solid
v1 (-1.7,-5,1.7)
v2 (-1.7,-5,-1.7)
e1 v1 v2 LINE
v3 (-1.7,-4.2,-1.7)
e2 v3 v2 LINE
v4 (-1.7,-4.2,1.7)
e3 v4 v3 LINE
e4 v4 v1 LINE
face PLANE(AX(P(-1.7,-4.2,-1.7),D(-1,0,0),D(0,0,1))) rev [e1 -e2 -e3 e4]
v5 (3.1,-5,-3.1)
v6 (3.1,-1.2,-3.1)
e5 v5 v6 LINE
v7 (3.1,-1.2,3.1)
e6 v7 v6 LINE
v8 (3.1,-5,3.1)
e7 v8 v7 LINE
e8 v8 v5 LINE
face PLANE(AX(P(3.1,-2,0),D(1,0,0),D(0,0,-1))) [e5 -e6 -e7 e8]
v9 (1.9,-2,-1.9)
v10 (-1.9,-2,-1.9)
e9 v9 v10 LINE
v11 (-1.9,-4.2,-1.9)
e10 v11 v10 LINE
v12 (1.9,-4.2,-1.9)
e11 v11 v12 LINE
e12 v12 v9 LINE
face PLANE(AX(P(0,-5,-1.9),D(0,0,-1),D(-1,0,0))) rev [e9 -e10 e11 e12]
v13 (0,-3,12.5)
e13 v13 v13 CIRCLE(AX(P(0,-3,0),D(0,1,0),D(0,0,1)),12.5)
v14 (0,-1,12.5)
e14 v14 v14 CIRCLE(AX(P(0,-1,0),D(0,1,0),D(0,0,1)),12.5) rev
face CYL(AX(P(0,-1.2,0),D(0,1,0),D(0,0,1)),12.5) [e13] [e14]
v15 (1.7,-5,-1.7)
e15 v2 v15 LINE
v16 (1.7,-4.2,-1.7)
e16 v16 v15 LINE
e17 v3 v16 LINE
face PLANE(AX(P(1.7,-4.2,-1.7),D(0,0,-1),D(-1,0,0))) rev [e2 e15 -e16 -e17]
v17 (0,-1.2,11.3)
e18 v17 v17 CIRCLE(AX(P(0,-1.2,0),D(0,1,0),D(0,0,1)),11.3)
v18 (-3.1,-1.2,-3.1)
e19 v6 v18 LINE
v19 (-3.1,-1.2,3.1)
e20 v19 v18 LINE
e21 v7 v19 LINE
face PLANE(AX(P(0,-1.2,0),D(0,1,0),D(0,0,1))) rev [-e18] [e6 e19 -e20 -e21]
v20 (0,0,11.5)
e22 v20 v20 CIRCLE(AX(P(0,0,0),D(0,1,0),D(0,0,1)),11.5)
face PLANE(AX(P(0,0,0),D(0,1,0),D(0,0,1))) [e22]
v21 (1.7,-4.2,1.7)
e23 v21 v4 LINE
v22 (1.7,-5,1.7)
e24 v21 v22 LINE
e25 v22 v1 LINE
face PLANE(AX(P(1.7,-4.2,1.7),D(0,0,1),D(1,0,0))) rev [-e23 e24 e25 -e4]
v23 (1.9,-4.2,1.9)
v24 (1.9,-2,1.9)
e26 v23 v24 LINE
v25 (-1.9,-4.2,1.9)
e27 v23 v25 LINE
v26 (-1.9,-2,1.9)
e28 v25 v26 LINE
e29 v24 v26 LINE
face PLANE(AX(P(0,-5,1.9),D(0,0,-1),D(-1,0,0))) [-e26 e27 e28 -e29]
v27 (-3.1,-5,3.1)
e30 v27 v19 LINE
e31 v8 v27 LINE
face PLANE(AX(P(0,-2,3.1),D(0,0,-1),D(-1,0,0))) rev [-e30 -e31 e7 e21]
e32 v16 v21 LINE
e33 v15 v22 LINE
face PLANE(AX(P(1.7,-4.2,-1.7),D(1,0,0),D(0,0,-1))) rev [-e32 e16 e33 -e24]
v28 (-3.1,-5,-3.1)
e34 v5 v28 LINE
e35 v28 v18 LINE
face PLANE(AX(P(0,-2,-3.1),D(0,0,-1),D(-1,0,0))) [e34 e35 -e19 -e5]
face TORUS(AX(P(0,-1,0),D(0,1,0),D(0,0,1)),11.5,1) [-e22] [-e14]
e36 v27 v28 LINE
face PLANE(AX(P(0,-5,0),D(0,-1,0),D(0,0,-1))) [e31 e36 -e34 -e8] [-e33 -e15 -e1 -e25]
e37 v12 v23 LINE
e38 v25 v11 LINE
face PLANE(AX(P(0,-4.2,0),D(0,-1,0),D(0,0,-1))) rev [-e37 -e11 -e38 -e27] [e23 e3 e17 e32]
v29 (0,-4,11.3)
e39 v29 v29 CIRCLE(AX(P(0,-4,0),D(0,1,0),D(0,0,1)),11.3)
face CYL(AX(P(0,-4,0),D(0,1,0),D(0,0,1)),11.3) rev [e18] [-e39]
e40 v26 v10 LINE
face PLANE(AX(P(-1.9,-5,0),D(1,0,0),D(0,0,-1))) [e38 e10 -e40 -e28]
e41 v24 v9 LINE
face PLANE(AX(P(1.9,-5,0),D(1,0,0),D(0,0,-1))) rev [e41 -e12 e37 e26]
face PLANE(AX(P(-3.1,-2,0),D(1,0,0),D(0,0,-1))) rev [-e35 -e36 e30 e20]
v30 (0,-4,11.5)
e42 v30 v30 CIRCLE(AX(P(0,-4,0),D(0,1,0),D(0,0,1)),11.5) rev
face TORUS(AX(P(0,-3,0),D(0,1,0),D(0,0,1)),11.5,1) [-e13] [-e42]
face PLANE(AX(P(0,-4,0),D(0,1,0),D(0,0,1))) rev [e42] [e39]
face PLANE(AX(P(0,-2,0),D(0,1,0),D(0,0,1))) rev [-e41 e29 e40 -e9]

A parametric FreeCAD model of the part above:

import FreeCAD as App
import Part
import Sketcher
from FreeCAD import Vector
Q = App.Units.Quantity


def edges_at(feature, points):
    """Names of the edges that pass closest to the given points."""
    edges = feature.Shape.Edges
    near = lambda p: min(range(len(edges)), key=lambda i: edges[i].distToShape(Part.Vertex(*p))[0])
    return sorted({f"Edge{near(p) + 1}" for p in points})

doc = App.newDocument("Part")
params = doc.addObject("Spreadsheet::Sheet", "Params")
for row, (alias, value) in enumerate([
    ("sketch1_diameter", "25 mm"),
    ("pad1_length", "1.2 mm"),
    ("sketch2_diameter", "25 mm"),
    ("sketch2_diameter2", "22.6 mm"),
    ("pad2_length", "4 mm"),
    ("sketch3_width", "6.2 mm"),
    ("pad3_length", "2 mm"),
    ("sketch4_width", "6.2 mm"),
    ("sketch4_width2", "3.8 mm"),
    ("pad4_length", "3 mm"),
    ("fillet_radius", "1 mm"),
    ("sketch5_width", "3.8 mm"),
    ("sketch5_width2", "3.4 mm"),
    ("pad5_length", "0.8 mm"),
], start=1):
    params.set(f"A{row}", alias)
    params.set(f"B{row}", "=" + value)
    params.setAlias(f"B{row}", alias)

body = doc.addObject("PartDesign::Body", "Body")

sketch1 = doc.addObject("Sketcher::SketchObject", "Sketch")
body.addObject(sketch1)
sketch1.AttachmentSupport = (doc.XZ_Plane, [""])
sketch1.MapMode = "FlatFace"
sketch1.addGeometry(Part.Circle(Vector(0, 0, 0), Vector(0, 0, 1), 12), False)
sketch1.addConstraint(Sketcher.Constraint("Coincident", 0, 3, -1, 1))
sketch1.addConstraint(Sketcher.Constraint("Diameter", 0, Q("25 mm")))
sketch1.setExpression("Constraints[1]", "Params.sketch1_diameter")
pad1 = doc.addObject("PartDesign::Pad", "Pad")
body.addObject(pad1)
pad1.Profile = sketch1
pad1.setExpression("Length", "Params.pad1_length")

sketch2 = doc.addObject("Sketcher::SketchObject", "Sketch001")
body.addObject(sketch2)
sketch2.AttachmentSupport = (doc.XZ_Plane, [""])
sketch2.MapMode = "FlatFace"
sketch2.addGeometry(Part.Circle(Vector(0, 0, 0), Vector(0, 0, 1), 12), False)
sketch2.addGeometry(Part.Circle(Vector(0, 0, 0), Vector(0, 0, 1), 11), False)
sketch2.addConstraint(Sketcher.Constraint("Coincident", 0, 3, -1, 1))
sketch2.addConstraint(Sketcher.Constraint("Coincident", 1, 3, -1, 1))
sketch2.addConstraint(Sketcher.Constraint("Diameter", 0, Q("25 mm")))
sketch2.addConstraint(Sketcher.Constraint("Diameter", 1, Q("22.6 mm")))
sketch2.setExpression("Constraints[2]", "Params.sketch2_diameter")
sketch2.setExpression("Constraints[3]", "Params.sketch2_diameter2")
pad2 = doc.addObject("PartDesign::Pad", "Pad001")
body.addObject(pad2)
pad2.Profile = sketch2
pad2.setExpression("Length", "Params.pad2_length")

sketch3 = doc.addObject("Sketcher::SketchObject", "Sketch002")
body.addObject(sketch3)
sketch3.AttachmentSupport = (doc.XZ_Plane, [""])
sketch3.MapMode = "FlatFace"
sketch3.addGeometry(Part.LineSegment(Vector(-3, -3, 0), Vector(-3, 3, 0)), False)
sketch3.addGeometry(Part.LineSegment(Vector(-3, 3, 0), Vector(3, 3, 0)), False)
sketch3.addGeometry(Part.LineSegment(Vector(3, 3, 0), Vector(3, -3, 0)), False)
sketch3.addGeometry(Part.LineSegment(Vector(3, -3, 0), Vector(-3, -3, 0)), False)
sketch3.addConstraint(Sketcher.Constraint("Coincident", 0, 2, 1, 1))
sketch3.addConstraint(Sketcher.Constraint("Coincident", 1, 2, 2, 1))
sketch3.addConstraint(Sketcher.Constraint("Coincident", 2, 2, 3, 1))
sketch3.addConstraint(Sketcher.Constraint("Coincident", 3, 2, 0, 1))
sketch3.addConstraint(Sketcher.Constraint("Vertical", 0))
sketch3.addConstraint(Sketcher.Constraint("Horizontal", 1))
sketch3.addConstraint(Sketcher.Constraint("Vertical", 2))
sketch3.addConstraint(Sketcher.Constraint("Horizontal", 3))
sketch3.addConstraint(Sketcher.Constraint("Symmetric", 0, 2, 2, 2, -1, 1))
sketch3.addConstraint(Sketcher.Constraint("Equal", 3, 0))
sketch3.addConstraint(Sketcher.Constraint("DistanceX", 1, 1, 1, 2, Q("6.2 mm")))
sketch3.setExpression("Constraints[10]", "Params.sketch3_width")
pad3 = doc.addObject("PartDesign::Pad", "Pad002")
body.addObject(pad3)
pad3.Profile = sketch3
pad3.setExpression("Length", "Params.pad3_length")

sketch4 = doc.addObject("Sketcher::SketchObject", "Sketch003")
body.addObject(sketch4)
sketch4.AttachmentSupport = (doc.XZ_Plane, [""])
sketch4.MapMode = "FlatFace"
sketch4.AttachmentOffset = App.Placement(Vector(0, 0, 2), App.Rotation())
sketch4.addGeometry(Part.LineSegment(Vector(-3.1, -3.1, 0), Vector(-3.1, 3.1, 0)), False)
sketch4.addGeometry(Part.LineSegment(Vector(-3.1, 3.1, 0), Vector(3.1, 3.1, 0)), False)
sketch4.addGeometry(Part.LineSegment(Vector(3.1, 3.1, 0), Vector(3.1, -3.1, 0)), False)
sketch4.addGeometry(Part.LineSegment(Vector(3.1, -3.1, 0), Vector(-3.1, -3.1, 0)), False)
sketch4.addGeometry(Part.LineSegment(Vector(1.9, 1.9, 0), Vector(-1.9, 1.9, 0)), False)
sketch4.addGeometry(Part.LineSegment(Vector(-1.9, 1.9, 0), Vector(-1.9, -1.9, 0)), False)
sketch4.addGeometry(Part.LineSegment(Vector(-1.9, -1.9, 0), Vector(1.9, -1.9, 0)), False)
sketch4.addGeometry(Part.LineSegment(Vector(1.9, -1.9, 0), Vector(1.9, 1.9, 0)), False)
sketch4.addConstraint(Sketcher.Constraint("Coincident", 0, 2, 1, 1))
sketch4.addConstraint(Sketcher.Constraint("Coincident", 1, 2, 2, 1))
sketch4.addConstraint(Sketcher.Constraint("Coincident", 2, 2, 3, 1))
sketch4.addConstraint(Sketcher.Constraint("Coincident", 3, 2, 0, 1))
sketch4.addConstraint(Sketcher.Constraint("Coincident", 4, 2, 5, 1))
sketch4.addConstraint(Sketcher.Constraint("Coincident", 5, 2, 6, 1))
sketch4.addConstraint(Sketcher.Constraint("Coincident", 6, 2, 7, 1))
sketch4.addConstraint(Sketcher.Constraint("Coincident", 7, 2, 4, 1))
sketch4.addConstraint(Sketcher.Constraint("Vertical", 0))
sketch4.addConstraint(Sketcher.Constraint("Horizontal", 1))
sketch4.addConstraint(Sketcher.Constraint("Vertical", 2))
sketch4.addConstraint(Sketcher.Constraint("Horizontal", 3))
sketch4.addConstraint(Sketcher.Constraint("Horizontal", 4))
sketch4.addConstraint(Sketcher.Constraint("Vertical", 5))
sketch4.addConstraint(Sketcher.Constraint("Horizontal", 6))
sketch4.addConstraint(Sketcher.Constraint("Vertical", 7))
sketch4.addConstraint(Sketcher.Constraint("Symmetric", 0, 2, 2, 2, -1, 1))
sketch4.addConstraint(Sketcher.Constraint("Symmetric", 4, 2, 6, 2, -1, 1))
sketch4.addConstraint(Sketcher.Constraint("Equal", 3, 0))
sketch4.addConstraint(Sketcher.Constraint("Equal", 6, 5))
sketch4.addConstraint(Sketcher.Constraint("DistanceX", 1, 1, 1, 2, Q("6.2 mm")))
sketch4.addConstraint(Sketcher.Constraint("DistanceX", 4, 2, 4, 1, Q("3.8 mm")))
sketch4.setExpression("Constraints[20]", "Params.sketch4_width")
sketch4.setExpression("Constraints[21]", "Params.sketch4_width2")
pad4 = doc.addObject("PartDesign::Pad", "Pad003")
body.addObject(pad4)
pad4.Profile = sketch4
pad4.setExpression("Length", "Params.pad4_length")
doc.recompute()

fillet = doc.addObject("PartDesign::Fillet", "Fillet")
body.addObject(fillet)
fillet.Base = (pad4, edges_at(pad4, [(-12.5, 0, 0), (-12.5, -4, 0)]))
fillet.setExpression("Radius", "Params.fillet_radius")

sketch5 = doc.addObject("Sketcher::SketchObject", "Sketch004")
body.addObject(sketch5)
sketch5.AttachmentSupport = (doc.XZ_Plane, [""])
sketch5.MapMode = "FlatFace"
sketch5.AttachmentOffset = App.Placement(Vector(0, 0, 5), App.Rotation())
sketch5.addGeometry(Part.LineSegment(Vector(-1.9, 1.9, 0), Vector(-1.9, -1.9, 0)), False)
sketch5.addGeometry(Part.LineSegment(Vector(-1.9, -1.9, 0), Vector(1.9, -1.9, 0)), False)
sketch5.addGeometry(Part.LineSegment(Vector(1.9, -1.9, 0), Vector(1.9, 1.9, 0)), False)
sketch5.addGeometry(Part.LineSegment(Vector(1.9, 1.9, 0), Vector(-1.9, 1.9, 0)), False)
sketch5.addGeometry(Part.LineSegment(Vector(1.7, -1.7, 0), Vector(-1.7, -1.7, 0)), False)
sketch5.addGeometry(Part.LineSegment(Vector(-1.7, -1.7, 0), Vector(-1.7, 1.7, 0)), False)
sketch5.addGeometry(Part.LineSegment(Vector(-1.7, 1.7, 0), Vector(1.7, 1.7, 0)), False)
sketch5.addGeometry(Part.LineSegment(Vector(1.7, 1.7, 0), Vector(1.7, -1.7, 0)), False)
sketch5.addConstraint(Sketcher.Constraint("Coincident", 0, 2, 1, 1))
sketch5.addConstraint(Sketcher.Constraint("Coincident", 1, 2, 2, 1))
sketch5.addConstraint(Sketcher.Constraint("Coincident", 2, 2, 3, 1))
sketch5.addConstraint(Sketcher.Constraint("Coincident", 3, 2, 0, 1))
sketch5.addConstraint(Sketcher.Constraint("Coincident", 4, 2, 5, 1))
sketch5.addConstraint(Sketcher.Constraint("Coincident", 5, 2, 6, 1))
sketch5.addConstraint(Sketcher.Constraint("Coincident", 6, 2, 7, 1))
sketch5.addConstraint(Sketcher.Constraint("Coincident", 7, 2, 4, 1))
sketch5.addConstraint(Sketcher.Constraint("Vertical", 0))
sketch5.addConstraint(Sketcher.Constraint("Horizontal", 1))
sketch5.addConstraint(Sketcher.Constraint("Vertical", 2))
sketch5.addConstraint(Sketcher.Constraint("Horizontal", 3))
sketch5.addConstraint(Sketcher.Constraint("Horizontal", 4))
sketch5.addConstraint(Sketcher.Constraint("Vertical", 5))
sketch5.addConstraint(Sketcher.Constraint("Horizontal", 6))
sketch5.addConstraint(Sketcher.Constraint("Vertical", 7))
sketch5.addConstraint(Sketcher.Constraint("Symmetric", 0, 2, 2, 2, -1, 1))
sketch5.addConstraint(Sketcher.Constraint("Symmetric", 4, 2, 6, 2, -1, 1))
sketch5.addConstraint(Sketcher.Constraint("Equal", 3, 0))
sketch5.addConstraint(Sketcher.Constraint("Equal", 6, 5))
sketch5.addConstraint(Sketcher.Constraint("DistanceX", 1, 1, 1, 2, Q("3.8 mm")))
sketch5.addConstraint(Sketcher.Constraint("DistanceX", 4, 2, 4, 1, Q("3.4 mm")))
sketch5.setExpression("Constraints[20]", "Params.sketch5_width")
sketch5.setExpression("Constraints[21]", "Params.sketch5_width2")
pad5 = doc.addObject("PartDesign::Pad", "Pad004")
body.addObject(pad5)
pad5.Profile = sketch5
pad5.setExpression("Length", "Params.pad5_length")
pad5.Reversed = True

doc.recompute()
